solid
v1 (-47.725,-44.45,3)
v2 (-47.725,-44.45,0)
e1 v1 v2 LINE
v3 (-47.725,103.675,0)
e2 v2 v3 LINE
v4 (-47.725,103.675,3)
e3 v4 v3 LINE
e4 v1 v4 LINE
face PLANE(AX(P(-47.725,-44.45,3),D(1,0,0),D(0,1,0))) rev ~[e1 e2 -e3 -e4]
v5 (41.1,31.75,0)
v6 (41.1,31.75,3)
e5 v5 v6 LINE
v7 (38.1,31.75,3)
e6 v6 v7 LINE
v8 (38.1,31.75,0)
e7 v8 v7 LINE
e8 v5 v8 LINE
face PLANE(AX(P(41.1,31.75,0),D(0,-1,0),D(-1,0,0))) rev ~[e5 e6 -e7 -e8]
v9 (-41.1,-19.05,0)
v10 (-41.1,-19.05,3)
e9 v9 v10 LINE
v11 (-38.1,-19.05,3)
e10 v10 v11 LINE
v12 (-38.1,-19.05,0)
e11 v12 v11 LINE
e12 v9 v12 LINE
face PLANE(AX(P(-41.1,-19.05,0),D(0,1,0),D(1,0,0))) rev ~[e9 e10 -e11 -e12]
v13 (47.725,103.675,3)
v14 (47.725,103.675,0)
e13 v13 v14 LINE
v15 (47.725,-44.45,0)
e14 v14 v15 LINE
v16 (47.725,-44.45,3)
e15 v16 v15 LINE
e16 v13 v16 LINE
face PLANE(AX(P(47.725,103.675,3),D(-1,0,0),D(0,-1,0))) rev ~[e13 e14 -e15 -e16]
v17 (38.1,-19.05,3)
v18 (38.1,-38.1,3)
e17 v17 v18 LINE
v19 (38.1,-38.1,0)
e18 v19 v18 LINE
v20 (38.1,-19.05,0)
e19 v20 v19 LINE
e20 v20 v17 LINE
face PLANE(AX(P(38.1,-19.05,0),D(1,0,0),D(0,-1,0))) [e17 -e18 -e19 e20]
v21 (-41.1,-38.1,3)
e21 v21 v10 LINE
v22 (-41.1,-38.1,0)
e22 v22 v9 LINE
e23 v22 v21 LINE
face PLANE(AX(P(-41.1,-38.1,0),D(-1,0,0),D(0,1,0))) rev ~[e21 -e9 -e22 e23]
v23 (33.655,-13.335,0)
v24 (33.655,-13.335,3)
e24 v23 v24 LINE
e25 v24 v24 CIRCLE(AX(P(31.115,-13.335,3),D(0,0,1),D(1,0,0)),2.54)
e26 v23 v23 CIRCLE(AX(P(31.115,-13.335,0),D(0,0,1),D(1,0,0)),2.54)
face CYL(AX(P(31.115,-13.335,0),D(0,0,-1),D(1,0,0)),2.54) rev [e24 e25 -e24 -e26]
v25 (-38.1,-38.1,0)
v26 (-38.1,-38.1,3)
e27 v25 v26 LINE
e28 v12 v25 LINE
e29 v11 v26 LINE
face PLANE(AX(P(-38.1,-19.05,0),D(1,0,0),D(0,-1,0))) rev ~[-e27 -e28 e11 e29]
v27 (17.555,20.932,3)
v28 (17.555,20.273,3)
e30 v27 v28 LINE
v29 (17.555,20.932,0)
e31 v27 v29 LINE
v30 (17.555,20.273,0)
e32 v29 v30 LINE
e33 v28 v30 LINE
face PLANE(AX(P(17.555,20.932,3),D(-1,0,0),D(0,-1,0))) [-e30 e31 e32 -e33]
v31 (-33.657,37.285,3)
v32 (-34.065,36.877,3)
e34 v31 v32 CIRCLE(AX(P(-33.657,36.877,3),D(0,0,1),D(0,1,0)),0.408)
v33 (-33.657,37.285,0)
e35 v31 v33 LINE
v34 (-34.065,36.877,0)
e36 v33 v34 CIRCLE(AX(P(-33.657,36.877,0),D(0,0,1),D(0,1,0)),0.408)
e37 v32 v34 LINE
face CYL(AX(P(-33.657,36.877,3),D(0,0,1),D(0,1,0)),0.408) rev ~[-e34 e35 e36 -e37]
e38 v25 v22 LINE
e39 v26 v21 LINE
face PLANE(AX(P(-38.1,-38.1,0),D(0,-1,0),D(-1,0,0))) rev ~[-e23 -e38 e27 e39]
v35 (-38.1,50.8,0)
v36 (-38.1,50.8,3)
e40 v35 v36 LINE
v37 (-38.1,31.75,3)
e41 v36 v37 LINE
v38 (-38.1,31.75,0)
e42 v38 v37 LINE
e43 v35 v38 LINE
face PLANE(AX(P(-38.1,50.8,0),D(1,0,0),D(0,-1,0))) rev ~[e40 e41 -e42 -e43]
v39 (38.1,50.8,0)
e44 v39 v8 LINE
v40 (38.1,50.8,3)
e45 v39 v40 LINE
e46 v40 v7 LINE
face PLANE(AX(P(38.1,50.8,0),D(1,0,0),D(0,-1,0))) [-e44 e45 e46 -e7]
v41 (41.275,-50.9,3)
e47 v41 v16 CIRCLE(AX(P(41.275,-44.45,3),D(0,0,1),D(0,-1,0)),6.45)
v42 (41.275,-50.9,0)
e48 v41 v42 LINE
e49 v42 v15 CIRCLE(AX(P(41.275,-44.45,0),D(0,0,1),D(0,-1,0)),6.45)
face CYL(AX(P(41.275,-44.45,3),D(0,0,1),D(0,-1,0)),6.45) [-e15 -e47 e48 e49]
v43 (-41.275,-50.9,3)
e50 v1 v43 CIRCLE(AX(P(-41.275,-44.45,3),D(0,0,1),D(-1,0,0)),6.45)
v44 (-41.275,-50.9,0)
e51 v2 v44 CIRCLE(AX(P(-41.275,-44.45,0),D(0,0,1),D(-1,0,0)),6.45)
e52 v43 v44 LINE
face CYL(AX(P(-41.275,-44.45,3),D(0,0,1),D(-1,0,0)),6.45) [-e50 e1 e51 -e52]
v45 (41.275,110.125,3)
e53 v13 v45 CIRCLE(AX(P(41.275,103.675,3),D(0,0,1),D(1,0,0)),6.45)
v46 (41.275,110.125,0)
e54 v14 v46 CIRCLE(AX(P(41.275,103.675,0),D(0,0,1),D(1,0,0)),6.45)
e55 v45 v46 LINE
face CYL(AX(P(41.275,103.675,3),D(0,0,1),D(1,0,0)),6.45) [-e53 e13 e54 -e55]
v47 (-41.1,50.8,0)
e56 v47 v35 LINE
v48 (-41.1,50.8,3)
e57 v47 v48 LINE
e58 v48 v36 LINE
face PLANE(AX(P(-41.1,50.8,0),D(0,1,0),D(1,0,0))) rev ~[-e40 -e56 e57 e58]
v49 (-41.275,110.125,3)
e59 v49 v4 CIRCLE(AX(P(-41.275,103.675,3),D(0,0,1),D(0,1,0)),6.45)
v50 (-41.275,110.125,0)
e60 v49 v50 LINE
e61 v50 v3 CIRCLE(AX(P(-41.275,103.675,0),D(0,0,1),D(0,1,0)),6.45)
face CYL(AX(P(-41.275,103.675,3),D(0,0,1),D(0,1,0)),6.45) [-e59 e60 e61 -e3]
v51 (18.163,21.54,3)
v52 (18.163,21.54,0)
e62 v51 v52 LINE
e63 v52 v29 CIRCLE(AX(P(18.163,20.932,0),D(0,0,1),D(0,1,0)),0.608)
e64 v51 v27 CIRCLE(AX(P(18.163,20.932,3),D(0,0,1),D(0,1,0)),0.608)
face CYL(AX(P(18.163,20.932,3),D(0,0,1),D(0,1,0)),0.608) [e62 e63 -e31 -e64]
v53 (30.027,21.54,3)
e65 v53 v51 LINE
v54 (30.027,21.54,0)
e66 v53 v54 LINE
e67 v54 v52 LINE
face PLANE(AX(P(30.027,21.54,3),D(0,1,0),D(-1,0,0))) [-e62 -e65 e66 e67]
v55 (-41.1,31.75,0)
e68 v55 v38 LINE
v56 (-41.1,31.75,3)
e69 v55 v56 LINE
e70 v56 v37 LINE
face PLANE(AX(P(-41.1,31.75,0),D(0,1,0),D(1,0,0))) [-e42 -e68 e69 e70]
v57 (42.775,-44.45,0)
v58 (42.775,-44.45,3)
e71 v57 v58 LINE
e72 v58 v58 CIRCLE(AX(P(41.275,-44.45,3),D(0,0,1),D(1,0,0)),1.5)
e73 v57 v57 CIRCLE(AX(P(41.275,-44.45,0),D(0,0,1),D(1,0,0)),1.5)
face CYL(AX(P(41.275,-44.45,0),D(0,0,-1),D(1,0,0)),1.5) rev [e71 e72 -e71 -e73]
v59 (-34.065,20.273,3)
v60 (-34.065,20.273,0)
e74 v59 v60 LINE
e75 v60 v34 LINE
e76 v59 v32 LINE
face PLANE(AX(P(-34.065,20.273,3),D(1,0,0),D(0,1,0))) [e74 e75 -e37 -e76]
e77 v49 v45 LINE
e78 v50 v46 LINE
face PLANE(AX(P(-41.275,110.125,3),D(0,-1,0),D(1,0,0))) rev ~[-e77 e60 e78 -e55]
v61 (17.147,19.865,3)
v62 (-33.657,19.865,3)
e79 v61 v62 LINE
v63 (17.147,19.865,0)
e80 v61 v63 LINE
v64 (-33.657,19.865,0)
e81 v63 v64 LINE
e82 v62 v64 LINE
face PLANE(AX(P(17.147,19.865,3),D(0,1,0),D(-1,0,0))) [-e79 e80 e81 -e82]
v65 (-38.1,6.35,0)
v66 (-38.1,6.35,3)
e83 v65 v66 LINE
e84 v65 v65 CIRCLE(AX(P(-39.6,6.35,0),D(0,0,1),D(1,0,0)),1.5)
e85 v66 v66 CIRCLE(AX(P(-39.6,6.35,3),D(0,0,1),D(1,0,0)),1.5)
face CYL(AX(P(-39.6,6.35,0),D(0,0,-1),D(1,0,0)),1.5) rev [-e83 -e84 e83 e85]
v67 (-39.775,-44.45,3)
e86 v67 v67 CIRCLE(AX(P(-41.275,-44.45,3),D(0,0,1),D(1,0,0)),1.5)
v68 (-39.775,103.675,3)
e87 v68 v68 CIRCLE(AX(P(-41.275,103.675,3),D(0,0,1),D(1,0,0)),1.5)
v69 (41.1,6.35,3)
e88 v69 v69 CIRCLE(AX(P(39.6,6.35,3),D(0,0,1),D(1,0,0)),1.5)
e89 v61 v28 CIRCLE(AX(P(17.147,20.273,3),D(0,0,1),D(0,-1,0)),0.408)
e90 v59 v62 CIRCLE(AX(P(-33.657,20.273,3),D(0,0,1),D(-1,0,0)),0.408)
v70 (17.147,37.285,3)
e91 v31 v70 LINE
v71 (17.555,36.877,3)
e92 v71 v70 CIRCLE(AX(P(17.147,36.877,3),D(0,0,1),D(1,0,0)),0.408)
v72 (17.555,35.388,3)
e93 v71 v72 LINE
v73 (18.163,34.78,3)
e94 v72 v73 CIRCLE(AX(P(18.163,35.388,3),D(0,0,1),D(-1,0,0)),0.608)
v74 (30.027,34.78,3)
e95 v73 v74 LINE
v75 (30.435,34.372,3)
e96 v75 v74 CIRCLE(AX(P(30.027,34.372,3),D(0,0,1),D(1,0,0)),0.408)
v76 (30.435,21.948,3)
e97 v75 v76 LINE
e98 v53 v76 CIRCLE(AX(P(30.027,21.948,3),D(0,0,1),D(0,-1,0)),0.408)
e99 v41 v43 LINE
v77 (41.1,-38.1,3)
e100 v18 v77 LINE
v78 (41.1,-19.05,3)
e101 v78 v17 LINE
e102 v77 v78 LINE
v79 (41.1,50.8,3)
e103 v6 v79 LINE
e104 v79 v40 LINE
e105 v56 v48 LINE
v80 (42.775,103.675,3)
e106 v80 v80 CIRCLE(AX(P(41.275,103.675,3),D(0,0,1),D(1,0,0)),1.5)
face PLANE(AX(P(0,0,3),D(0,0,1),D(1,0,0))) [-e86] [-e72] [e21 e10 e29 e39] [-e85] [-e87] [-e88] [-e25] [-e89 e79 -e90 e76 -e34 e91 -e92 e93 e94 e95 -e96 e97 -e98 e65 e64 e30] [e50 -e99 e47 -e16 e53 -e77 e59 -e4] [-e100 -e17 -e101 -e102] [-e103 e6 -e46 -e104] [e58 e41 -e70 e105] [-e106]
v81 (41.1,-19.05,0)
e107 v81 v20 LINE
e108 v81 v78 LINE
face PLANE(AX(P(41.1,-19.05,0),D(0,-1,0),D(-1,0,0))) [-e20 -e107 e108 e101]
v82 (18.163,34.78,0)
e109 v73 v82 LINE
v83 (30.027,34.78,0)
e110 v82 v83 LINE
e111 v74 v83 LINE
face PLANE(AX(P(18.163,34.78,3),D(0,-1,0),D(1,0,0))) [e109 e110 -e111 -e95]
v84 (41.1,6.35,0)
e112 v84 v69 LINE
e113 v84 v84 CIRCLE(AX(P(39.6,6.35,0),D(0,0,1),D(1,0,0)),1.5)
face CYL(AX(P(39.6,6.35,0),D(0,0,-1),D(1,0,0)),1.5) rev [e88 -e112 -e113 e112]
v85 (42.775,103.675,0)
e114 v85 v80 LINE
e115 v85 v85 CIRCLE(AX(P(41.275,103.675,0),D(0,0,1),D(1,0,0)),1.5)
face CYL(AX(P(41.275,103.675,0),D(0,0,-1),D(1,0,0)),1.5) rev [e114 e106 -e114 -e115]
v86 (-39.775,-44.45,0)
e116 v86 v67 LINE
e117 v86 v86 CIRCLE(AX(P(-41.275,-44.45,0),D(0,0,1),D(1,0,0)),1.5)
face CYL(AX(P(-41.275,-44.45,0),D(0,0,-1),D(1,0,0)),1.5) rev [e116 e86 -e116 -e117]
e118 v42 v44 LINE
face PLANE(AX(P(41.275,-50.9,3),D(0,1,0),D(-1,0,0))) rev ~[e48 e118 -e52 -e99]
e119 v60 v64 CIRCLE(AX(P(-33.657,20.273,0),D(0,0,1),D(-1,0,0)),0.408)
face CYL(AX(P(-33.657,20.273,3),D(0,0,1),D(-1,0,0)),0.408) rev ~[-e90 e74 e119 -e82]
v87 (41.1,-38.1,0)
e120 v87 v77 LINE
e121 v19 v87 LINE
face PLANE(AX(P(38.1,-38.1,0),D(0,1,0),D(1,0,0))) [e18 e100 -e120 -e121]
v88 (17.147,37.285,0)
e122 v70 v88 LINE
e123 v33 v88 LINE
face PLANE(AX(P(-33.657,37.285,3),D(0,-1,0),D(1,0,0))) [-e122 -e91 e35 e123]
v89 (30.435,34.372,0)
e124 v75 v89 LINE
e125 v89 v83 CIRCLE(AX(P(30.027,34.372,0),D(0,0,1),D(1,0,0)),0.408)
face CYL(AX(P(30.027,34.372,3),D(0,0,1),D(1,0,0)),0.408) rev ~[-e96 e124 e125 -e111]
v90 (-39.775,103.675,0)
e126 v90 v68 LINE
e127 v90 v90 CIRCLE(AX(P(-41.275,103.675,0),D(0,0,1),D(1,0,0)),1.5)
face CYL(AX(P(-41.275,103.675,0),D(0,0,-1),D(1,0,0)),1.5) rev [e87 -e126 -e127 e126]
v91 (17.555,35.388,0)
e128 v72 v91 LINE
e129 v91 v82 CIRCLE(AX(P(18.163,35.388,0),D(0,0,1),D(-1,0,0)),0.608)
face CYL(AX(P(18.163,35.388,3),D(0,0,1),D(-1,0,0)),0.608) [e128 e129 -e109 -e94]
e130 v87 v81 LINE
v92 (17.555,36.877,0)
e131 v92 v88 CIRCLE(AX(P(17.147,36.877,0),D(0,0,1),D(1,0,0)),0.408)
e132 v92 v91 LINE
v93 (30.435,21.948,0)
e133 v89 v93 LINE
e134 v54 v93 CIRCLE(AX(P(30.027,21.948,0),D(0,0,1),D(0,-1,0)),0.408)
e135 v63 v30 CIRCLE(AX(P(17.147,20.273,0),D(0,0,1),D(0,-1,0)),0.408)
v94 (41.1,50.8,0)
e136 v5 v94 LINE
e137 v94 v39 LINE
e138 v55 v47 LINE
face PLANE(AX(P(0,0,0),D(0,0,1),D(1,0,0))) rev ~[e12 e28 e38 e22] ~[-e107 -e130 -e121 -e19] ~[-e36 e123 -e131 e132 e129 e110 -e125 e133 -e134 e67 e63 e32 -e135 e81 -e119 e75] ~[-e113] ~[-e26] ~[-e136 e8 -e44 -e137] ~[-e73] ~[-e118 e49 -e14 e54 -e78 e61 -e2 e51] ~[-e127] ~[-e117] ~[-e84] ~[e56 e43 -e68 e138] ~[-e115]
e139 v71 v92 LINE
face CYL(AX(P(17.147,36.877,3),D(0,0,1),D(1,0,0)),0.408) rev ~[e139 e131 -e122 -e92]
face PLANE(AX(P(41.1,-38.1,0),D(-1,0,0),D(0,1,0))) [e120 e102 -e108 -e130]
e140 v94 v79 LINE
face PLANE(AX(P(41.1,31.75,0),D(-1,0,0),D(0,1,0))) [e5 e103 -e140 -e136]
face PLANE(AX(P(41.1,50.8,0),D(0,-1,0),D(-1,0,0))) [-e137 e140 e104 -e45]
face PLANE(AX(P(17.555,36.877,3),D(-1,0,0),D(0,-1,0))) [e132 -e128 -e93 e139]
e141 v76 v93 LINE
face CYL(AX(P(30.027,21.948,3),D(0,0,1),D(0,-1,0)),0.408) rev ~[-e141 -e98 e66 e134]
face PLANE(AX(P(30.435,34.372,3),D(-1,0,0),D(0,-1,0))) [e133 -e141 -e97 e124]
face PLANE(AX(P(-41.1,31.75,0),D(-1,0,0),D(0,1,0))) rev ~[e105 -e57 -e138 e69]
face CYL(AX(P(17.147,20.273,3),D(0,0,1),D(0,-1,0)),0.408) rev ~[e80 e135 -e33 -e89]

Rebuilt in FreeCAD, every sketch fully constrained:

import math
import FreeCAD as App
import Part
import Sketcher
Q = App.Units.Quantity


def add_polygon(sketch, points):
    """Adds a closed chain of lines whose ends are joined by coincident constraints."""
    first, n = sketch.GeometryCount, len(points)
    for a, b in zip(points, points[1:] + points[:1]):
        sketch.addGeometry(Part.LineSegment(App.Vector(*a, 0), App.Vector(*b, 0)), False)
    for i in range(n):
        sketch.addConstraint(Sketcher.Constraint("Coincident", first + i, 2, first + (i + 1) % n, 1))

doc = App.newDocument("Part")
body = doc.addObject("PartDesign::Body", "Body")

# Sketch on XY plane
sketch1 = body.newObject("Sketcher::SketchObject", "Sketch")
sketch1.AttachmentSupport = (doc.getObject("XY_Plane"), [""])
sketch1.MapMode = "FlatFace"
sketch1.addGeometry(Part.LineSegment(App.Vector(-41.3, -50.8, 0), App.Vector(41.3, -50.8, 0)), False)  # 0
sketch1.addGeometry(Part.ArcOfCircle(Part.Circle(App.Vector(41.3, -44.5, 0), App.Vector(0, 0, 1), 6.3), math.radians(-90), math.radians(0)), False)  # 1
sketch1.addGeometry(Part.LineSegment(App.Vector(47.6, -44.5, 0), App.Vector(47.6, 103.7, 0)), False)  # 2
sketch1.addGeometry(Part.ArcOfCircle(Part.Circle(App.Vector(41.3, 103.7, 0), App.Vector(0, 0, 1), 6.4), math.radians(0), math.radians(90)), False)  # 3
sketch1.addGeometry(Part.LineSegment(App.Vector(41.3, 110, 0), App.Vector(-41.3, 110, 0)), False)  # 4
sketch1.addGeometry(Part.ArcOfCircle(Part.Circle(App.Vector(-41.3, 103.7, 0), App.Vector(0, 0, 1), 6.4), math.radians(90), math.radians(180)), False)  # 5
sketch1.addGeometry(Part.LineSegment(App.Vector(-47.6, 103.7, 0), App.Vector(-47.6, -44.5, 0)), False)  # 6
sketch1.addGeometry(Part.ArcOfCircle(Part.Circle(App.Vector(-41.3, -44.5, 0), App.Vector(0, 0, 1), 6.4), math.radians(180), math.radians(270)), False)  # 7
sketch1.addGeometry(Part.LineSegment(App.Vector(-33.7, 37.4, 0), App.Vector(17.1, 37.4, 0)), False)  # 8
sketch1.addGeometry(Part.ArcOfCircle(Part.Circle(App.Vector(17.1, 36.9, 0), App.Vector(0, 0, 1), 0.5), math.radians(0), math.radians(90)), False)  # 9
sketch1.addGeometry(Part.LineSegment(App.Vector(17.7, 36.9, 0), App.Vector(17.7, 35.4, 0)), False)  # 10
sketch1.addGeometry(Part.ArcOfCircle(Part.Circle(App.Vector(18.2, 35.4, 0), App.Vector(0, 0, 1), 0.5), math.radians(180), math.radians(270)), False)  # 11
sketch1.addGeometry(Part.LineSegment(App.Vector(18.2, 34.9, 0), App.Vector(30, 34.9, 0)), False)  # 12
sketch1.addGeometry(Part.ArcOfCircle(Part.Circle(App.Vector(30, 34.4, 0), App.Vector(0, 0, 1), 0.5), math.radians(0), math.radians(90)), False)  # 13
sketch1.addGeometry(Part.LineSegment(App.Vector(30.5, 34.4, 0), App.Vector(30.5, 21.9, 0)), False)  # 14
sketch1.addGeometry(Part.ArcOfCircle(Part.Circle(App.Vector(30, 21.9, 0), App.Vector(0, 0, 1), 0.5), math.radians(-90), math.radians(0)), False)  # 15
sketch1.addGeometry(Part.LineSegment(App.Vector(30, 21.4, 0), App.Vector(18.2, 21.4, 0)), False)  # 16
sketch1.addGeometry(Part.ArcOfCircle(Part.Circle(App.Vector(18.2, 20.9, 0), App.Vector(0, 0, 1), 0.5), math.radians(90), math.radians(180)), False)  # 17
sketch1.addGeometry(Part.LineSegment(App.Vector(17.7, 20.9, 0), App.Vector(17.7, 20.3, 0)), False)  # 18
sketch1.addGeometry(Part.ArcOfCircle(Part.Circle(App.Vector(17.1, 20.3, 0), App.Vector(0, 0, 1), 0.5), math.radians(-90), math.radians(0)), False)  # 19
sketch1.addGeometry(Part.LineSegment(App.Vector(17.1, 19.8, 0), App.Vector(-33.7, 19.8, 0)), False)  # 20
sketch1.addGeometry(Part.ArcOfCircle(Part.Circle(App.Vector(-33.7, 20.3, 0), App.Vector(0, 0, 1), 0.5), math.radians(180), math.radians(270)), False)  # 21
sketch1.addGeometry(Part.LineSegment(App.Vector(-34.2, 20.3, 0), App.Vector(-34.2, 36.9, 0)), False)  # 22
sketch1.addGeometry(Part.ArcOfCircle(Part.Circle(App.Vector(-33.7, 36.9, 0), App.Vector(0, 0, 1), 0.5), math.radians(90), math.radians(180)), False)  # 23
sketch1.addGeometry(Part.Circle(App.Vector(-41.3, -44.5, 0), App.Vector(0, 0, 1), 1.5), False)  # 24
add_polygon(sketch1, [(-38.1, -19.1), (-38.1, -38.1), (-41.1, -38.1), (-41.1, -19.1)])  # lines 25-28
sketch1.addGeometry(Part.Circle(App.Vector(-39.6, 6.3, 0), App.Vector(0, 0, 1), 1.5), False)  # 29
add_polygon(sketch1, [(-41.1, 31.8), (-41.1, 50.8), (-38.1, 50.8), (-38.1, 31.8)])  # lines 30-33
sketch1.addGeometry(Part.Circle(App.Vector(-41.3, 103.7, 0), App.Vector(0, 0, 1), 1.5), False)  # 34
add_polygon(sketch1, [(41.1, 31.8), (38.1, 31.8), (38.1, 50.8), (41.1, 50.8)])  # lines 35-38
sketch1.addGeometry(Part.Circle(App.Vector(41.3, 103.7, 0), App.Vector(0, 0, 1), 1.5), False)  # 39
sketch1.addGeometry(Part.Circle(App.Vector(41.3, -44.5, 0), App.Vector(0, 0, 1), 1.5), False)  # 40
sketch1.addGeometry(Part.Circle(App.Vector(31.1, -13.3, 0), App.Vector(0, 0, 1), 2.5), False)  # 41
add_polygon(sketch1, [(41.1, -38.1), (38.1, -38.1), (38.1, -19.1), (41.1, -19.1)])  # lines 42-45
sketch1.addGeometry(Part.Circle(App.Vector(39.6, 6.3, 0), App.Vector(0, 0, 1), 1.5), False)  # 46
sketch1.addConstraint([
    Sketcher.Constraint("Tangent", 0, 2, 1, 1),
    Sketcher.Constraint("Tangent", 1, 2, 2, 1),
    Sketcher.Constraint("Tangent", 2, 2, 3, 1),
    Sketcher.Constraint("Tangent", 3, 2, 4, 1),
    Sketcher.Constraint("Tangent", 4, 2, 5, 1),
    Sketcher.Constraint("Tangent", 5, 2, 6, 1),
    Sketcher.Constraint("Tangent", 6, 2, 7, 1),
    Sketcher.Constraint("Tangent", 7, 2, 0, 1),
    Sketcher.Constraint("Tangent", 8, 2, 9, 2),
    Sketcher.Constraint("Tangent", 9, 1, 10, 1),
    Sketcher.Constraint("Tangent", 10, 2, 11, 1),
    Sketcher.Constraint("Tangent", 11, 2, 12, 1),
    Sketcher.Constraint("Tangent", 12, 2, 13, 2),
    Sketcher.Constraint("Tangent", 13, 1, 14, 1),
    Sketcher.Constraint("Tangent", 14, 2, 15, 2),
    Sketcher.Constraint("Tangent", 15, 1, 16, 1),
    Sketcher.Constraint("Tangent", 16, 2, 17, 1),
    Sketcher.Constraint("Tangent", 17, 2, 18, 1),
    Sketcher.Constraint("Tangent", 18, 2, 19, 2),
    Sketcher.Constraint("Tangent", 19, 1, 20, 1),
    Sketcher.Constraint("Tangent", 20, 2, 21, 2),
    Sketcher.Constraint("Tangent", 21, 1, 22, 1),
    Sketcher.Constraint("Tangent", 22, 2, 23, 2),
    Sketcher.Constraint("Tangent", 23, 1, 8, 1),
    Sketcher.Constraint("Horizontal", 0),
    Sketcher.Constraint("Vertical", 2),
    Sketcher.Constraint("Horizontal", 4),
    Sketcher.Constraint("Vertical", 6),
    Sketcher.Constraint("Horizontal", 8),
    Sketcher.Constraint("Vertical", 10),
    Sketcher.Constraint("Horizontal", 12),
    Sketcher.Constraint("Vertical", 14),
    Sketcher.Constraint("Horizontal", 16),
    Sketcher.Constraint("Vertical", 18),
    Sketcher.Constraint("Horizontal", 20),
    Sketcher.Constraint("Vertical", 22),
    Sketcher.Constraint("Vertical", 25),
    Sketcher.Constraint("Horizontal", 26),
    Sketcher.Constraint("Vertical", 27),
    Sketcher.Constraint("Horizontal", 28),
    Sketcher.Constraint("Vertical", 30),
    Sketcher.Constraint("Horizontal", 31),
    Sketcher.Constraint("Vertical", 32),
    Sketcher.Constraint("Horizontal", 33),
    Sketcher.Constraint("Horizontal", 35),
    Sketcher.Constraint("Vertical", 36),
    Sketcher.Constraint("Horizontal", 37),
    Sketcher.Constraint("Vertical", 38),
    Sketcher.Constraint("Horizontal", 42),
    Sketcher.Constraint("Vertical", 43),
    Sketcher.Constraint("Horizontal", 44),
    Sketcher.Constraint("Vertical", 45),
    Sketcher.Constraint("Coincident", 24, 3, 7, 3),
    Sketcher.Constraint("Coincident", 34, 3, 5, 3),
    Sketcher.Constraint("Coincident", 39, 3, 3, 3),
    Sketcher.Constraint("Coincident", 40, 3, 1, 3),
    Sketcher.Constraint("Equal", 1, 3),
    Sketcher.Constraint("Equal", 3, 5),
    Sketcher.Constraint("Equal", 5, 7),
    Sketcher.Constraint("Equal", 9, 11),
    Sketcher.Constraint("Equal", 11, 13),
    Sketcher.Constraint("Equal", 13, 15),
    Sketcher.Constraint("Equal", 15, 17),
    Sketcher.Constraint("Equal", 17, 19),
    Sketcher.Constraint("Equal", 19, 21),
    Sketcher.Constraint("Equal", 21, 23),
    Sketcher.Constraint("Equal", 24, 29),
    Sketcher.Constraint("Equal", 29, 34),
    Sketcher.Constraint("Equal", 34, 39),
    Sketcher.Constraint("Equal", 39, 40),
    Sketcher.Constraint("Equal", 40, 46),
    Sketcher.Constraint("Symmetric", 29, 3, 46, 3, -2),
    Sketcher.Constraint("Symmetric", 32, 2, 35, 2, -2),
    Sketcher.Constraint("Symmetric", 30, 2, 37, 2, -2),
    Sketcher.Constraint("Symmetric", 25, 2, 42, 2, -2),
    Sketcher.Constraint("Symmetric", 27, 2, 44, 2, -2),
    Sketcher.Constraint("Vertical", 11, 3, 17, 3),
    Sketcher.Constraint("Vertical", 27, 2, 30, 2),
    Sketcher.Constraint("Vertical", 28, 2, 31, 2),
    Sketcher.Constraint("Equal", 27, 30),
    Sketcher.Constraint("Diameter", 41, Q("0.2 in")),
    Sketcher.Constraint("Radius", 1, Q("0.25 in")),
    Sketcher.Constraint("Radius", 9, Q("0.02 in")),
    Sketcher.Constraint("DistanceY", 7, 3, 27, 2, Q("1 in")),
    Sketcher.Constraint("DistanceY", 27, 2, 29, 3, Q("1 in")),
    Sketcher.Constraint("Diameter", 24, Q("0.1181 in")),
    Sketcher.Constraint("DistanceY", 25, 2, 25, 1, Q("0.75 in")),
    Sketcher.Constraint("DistanceX", 41, 3, 1, 3, Q("0.4 in")),
    Sketcher.Constraint("DistanceY", -1, 1, 29, 3, Q("0.25 in")),
    Sketcher.Constraint("DistanceX", 26, 2, 26, 1, Q("0.1181 in")),
    Sketcher.Constraint("DistanceY", -1, 1, 30, 2, Q("2 in")),
    Sketcher.Constraint("DistanceX", 7, 3, 25, 2, Q("0.125 in")),
    Sketcher.Constraint("DistanceX", 42, 2, 1, 3, Q("0.125 in")),
    Sketcher.Constraint("DistanceY", 42, 2, 41, 3, Q("0.975 in")),
    Sketcher.Constraint("DistanceX", 0, 1, 0, 2, Q("3.25 in")),
    Sketcher.Constraint("DistanceY", 2, 1, 2, 2, Q("5.8317 in")),
    Sketcher.Constraint("DistanceY", 22, 1, 22, 2, Q("0.6537 in")),
    Sketcher.Constraint("DistanceX", 8, 1, 8, 2, Q("50.804 mm")),
    Sketcher.Constraint("DistanceX", 12, 1, 12, 2, Q("11.864 mm")),
    Sketcher.Constraint("DistanceY", 10, 2, 10, 1, Q("1.489 mm")),
    Sketcher.Constraint("DistanceY", 14, 2, 14, 1, Q("12.424 mm")),
    Sketcher.Constraint("DistanceY", -1, 1, 15, 3, Q("0.8641 in")),
    Sketcher.Constraint("DistanceX", 15, 3, 46, 3, Q("0.3769 in")),
    Sketcher.Constraint("DistanceX", -1, 1, 9, 3, Q("17.147 mm")),
])
pad1 = body.newObject("PartDesign::Pad", "Pad")
pad1.Profile = sketch1
pad1.Length = Q("0.1181102 in")

# Sketch on XY plane
sketch2 = body.newObject("Sketcher::SketchObject", "Sketch001")
sketch2.AttachmentSupport = (doc.getObject("XY_Plane"), [""])
sketch2.MapMode = "FlatFace"
sketch2.AttachmentOffset = App.Placement(App.Vector(0, 0, 0.1181102 * 25.4), App.Rotation())
sketch2.addGeometry([
    Part.LineSegment(App.Vector(17.66, 35.39, 0), App.Vector(17.66, 36.88, 0)),  # 0
    Part.ArcOfCircle(Part.Circle(App.Vector(17.15, 36.88, 0), App.Vector(0, 0, 1), 0.51), math.radians(0), math.radians(90)),  # 1
    Part.LineSegment(App.Vector(17.15, 37.38, 0), App.Vector(-33.66, 37.38, 0)),  # 2
    Part.ArcOfCircle(Part.Circle(App.Vector(-33.66, 36.88, 0), App.Vector(0, 0, 1), 0.51), math.radians(90), math.radians(180)),  # 3
    Part.LineSegment(App.Vector(-34.16, 36.88, 0), App.Vector(-34.16, 20.27, 0)),  # 4
    Part.ArcOfCircle(Part.Circle(App.Vector(-33.66, 20.27, 0), App.Vector(0, 0, 1), 0.51), math.radians(180), math.radians(270)),  # 5
    Part.LineSegment(App.Vector(-33.66, 19.77, 0), App.Vector(17.15, 19.77, 0)),  # 6
    Part.ArcOfCircle(Part.Circle(App.Vector(17.15, 20.27, 0), App.Vector(0, 0, 1), 0.51), math.radians(-90), math.radians(0)),  # 7
    Part.LineSegment(App.Vector(17.66, 20.27, 0), App.Vector(17.66, 20.93, 0)),  # 8
    Part.ArcOfCircle(Part.Circle(App.Vector(18.16, 20.93, 0), App.Vector(0, 0, 1), 0.51), math.radians(90), math.radians(180)),  # 9
    Part.LineSegment(App.Vector(18.16, 21.44, 0), App.Vector(30.03, 21.44, 0)),  # 10
    Part.ArcOfCircle(Part.Circle(App.Vector(30.03, 21.95, 0), App.Vector(0, 0, 1), 0.51), math.radians(-90), math.radians(0)),  # 11
    Part.LineSegment(App.Vector(30.54, 21.95, 0), App.Vector(30.54, 34.37, 0)),  # 12
    Part.ArcOfCircle(Part.Circle(App.Vector(30.03, 34.37, 0), App.Vector(0, 0, 1), 0.51), math.radians(0), math.radians(90)),  # 13
    Part.LineSegment(App.Vector(30.03, 34.88, 0), App.Vector(18.16, 34.88, 0)),  # 14
    Part.ArcOfCircle(Part.Circle(App.Vector(18.16, 35.39, 0), App.Vector(0, 0, 1), 0.51), math.radians(180), math.radians(270)),  # 15
    Part.ArcOfCircle(Part.Circle(App.Vector(17.15, 36.88, 0), App.Vector(0, 0, 1), 0.41), math.radians(0), math.radians(90)),  # 16
    Part.LineSegment(App.Vector(17.55, 36.88, 0), App.Vector(17.55, 35.39, 0)),  # 17
    Part.ArcOfCircle(Part.Circle(App.Vector(18.16, 35.39, 0), App.Vector(0, 0, 1), 0.61), math.radians(180), math.radians(270)),  # 18
    Part.LineSegment(App.Vector(18.16, 34.78, 0), App.Vector(30.03, 34.78, 0)),  # 19
    Part.ArcOfCircle(Part.Circle(App.Vector(30.03, 34.37, 0), App.Vector(0, 0, 1), 0.41), math.radians(0), math.radians(90)),  # 20
    Part.LineSegment(App.Vector(30.43, 34.37, 0), App.Vector(30.43, 21.95, 0)),  # 21
    Part.ArcOfCircle(Part.Circle(App.Vector(30.03, 21.95, 0), App.Vector(0, 0, 1), 0.41), math.radians(-90), math.radians(0)),  # 22
    Part.LineSegment(App.Vector(30.03, 21.54, 0), App.Vector(18.16, 21.54, 0)),  # 23
    Part.ArcOfCircle(Part.Circle(App.Vector(18.16, 20.93, 0), App.Vector(0, 0, 1), 0.61), math.radians(90), math.radians(180)),  # 24
    Part.LineSegment(App.Vector(17.55, 20.93, 0), App.Vector(17.55, 20.27, 0)),  # 25
    Part.ArcOfCircle(Part.Circle(App.Vector(17.15, 20.27, 0), App.Vector(0, 0, 1), 0.41), math.radians(-90), math.radians(0)),  # 26
    Part.LineSegment(App.Vector(17.15, 19.86, 0), App.Vector(-33.66, 19.86, 0)),  # 27
    Part.ArcOfCircle(Part.Circle(App.Vector(-33.66, 20.27, 0), App.Vector(0, 0, 1), 0.41), math.radians(180), math.radians(270)),  # 28
    Part.LineSegment(App.Vector(-34.06, 20.27, 0), App.Vector(-34.06, 36.88, 0)),  # 29
    Part.ArcOfCircle(Part.Circle(App.Vector(-33.66, 36.88, 0), App.Vector(0, 0, 1), 0.41), math.radians(90), math.radians(180)),  # 30
    Part.LineSegment(App.Vector(-33.66, 37.28, 0), App.Vector(17.15, 37.28, 0)),  # 31
    Part.LineSegment(App.Vector(-47.73, 103.67, 0), App.Vector(-47.73, -44.45, 0)),  # 32
    Part.ArcOfCircle(Part.Circle(App.Vector(-41.27, -44.45, 0), App.Vector(0, 0, 1), 6.45), math.radians(180), math.radians(270)),  # 33
    Part.LineSegment(App.Vector(-41.27, -50.9, 0), App.Vector(41.27, -50.9, 0)),  # 34
    Part.ArcOfCircle(Part.Circle(App.Vector(41.27, -44.45, 0), App.Vector(0, 0, 1), 6.45), math.radians(-90), math.radians(0)),  # 35
    Part.LineSegment(App.Vector(47.73, -44.45, 0), App.Vector(47.73, 103.67, 0)),  # 36
    Part.ArcOfCircle(Part.Circle(App.Vector(41.27, 103.67, 0), App.Vector(0, 0, 1), 6.45), math.radians(0), math.radians(90)),  # 37
    Part.LineSegment(App.Vector(41.27, 110.12, 0), App.Vector(-41.27, 110.12, 0)),  # 38
    Part.ArcOfCircle(Part.Circle(App.Vector(-41.27, 103.67, 0), App.Vector(0, 0, 1), 6.45), math.radians(90), math.radians(180)),  # 39
    Part.LineSegment(App.Vector(-41.27, 110.03, 0), App.Vector(41.27, 110.03, 0)),  # 40
    Part.ArcOfCircle(Part.Circle(App.Vector(41.27, 103.67, 0), App.Vector(0, 0, 1), 6.35), math.radians(0), math.radians(90)),  # 41
    Part.LineSegment(App.Vector(47.62, 103.67, 0), App.Vector(47.62, -44.45, 0)),  # 42
    Part.ArcOfCircle(Part.Circle(App.Vector(41.27, -44.45, 0), App.Vector(0, 0, 1), 6.35), math.radians(-90), math.radians(0)),  # 43
    Part.LineSegment(App.Vector(41.27, -50.8, 0), App.Vector(-41.27, -50.8, 0)),  # 44
    Part.ArcOfCircle(Part.Circle(App.Vector(-41.27, -44.45, 0), App.Vector(0, 0, 1), 6.35), math.radians(180), math.radians(270)),  # 45
    Part.LineSegment(App.Vector(-47.62, -44.45, 0), App.Vector(-47.62, 103.67, 0)),  # 46
    Part.ArcOfCircle(Part.Circle(App.Vector(-41.27, 103.67, 0), App.Vector(0, 0, 1), 6.35), math.radians(90), math.radians(180)),  # 47
], False)
sketch2.addConstraint([
    Sketcher.Constraint("Tangent", 0, 2, 1, 1),
    Sketcher.Constraint("Tangent", 1, 2, 2, 1),
    Sketcher.Constraint("Tangent", 2, 2, 3, 1),
    Sketcher.Constraint("Tangent", 3, 2, 4, 1),
    Sketcher.Constraint("Tangent", 4, 2, 5, 1),
    Sketcher.Constraint("Tangent", 5, 2, 6, 1),
    Sketcher.Constraint("Tangent", 6, 2, 7, 1),
    Sketcher.Constraint("Tangent", 7, 2, 8, 1),
    Sketcher.Constraint("Tangent", 8, 2, 9, 2),
    Sketcher.Constraint("Tangent", 9, 1, 10, 1),
    Sketcher.Constraint("Tangent", 10, 2, 11, 1),
    Sketcher.Constraint("Tangent", 11, 2, 12, 1),
    Sketcher.Constraint("Tangent", 12, 2, 13, 1),
    Sketcher.Constraint("Tangent", 13, 2, 14, 1),
    Sketcher.Constraint("Tangent", 14, 2, 15, 2),
    Sketcher.Constraint("Tangent", 15, 1, 0, 1),
    Sketcher.Constraint("Tangent", 16, 1, 17, 1),
    Sketcher.Constraint("Tangent", 17, 2, 18, 1),
    Sketcher.Constraint("Tangent", 18, 2, 19, 1),
    Sketcher.Constraint("Tangent", 19, 2, 20, 2),
    Sketcher.Constraint("Tangent", 20, 1, 21, 1),
    Sketcher.Constraint("Tangent", 21, 2, 22, 2),
    Sketcher.Constraint("Tangent", 22, 1, 23, 1),
    Sketcher.Constraint("Tangent", 23, 2, 24, 1),
    Sketcher.Constraint("Tangent", 24, 2, 25, 1),
    Sketcher.Constraint("Tangent", 25, 2, 26, 2),
    Sketcher.Constraint("Tangent", 26, 1, 27, 1),
    Sketcher.Constraint("Tangent", 27, 2, 28, 2),
    Sketcher.Constraint("Tangent", 28, 1, 29, 1),
    Sketcher.Constraint("Tangent", 29, 2, 30, 2),
    Sketcher.Constraint("Tangent", 30, 1, 31, 1),
    Sketcher.Constraint("Tangent", 31, 2, 16, 2),
    Sketcher.Constraint("Tangent", 32, 2, 33, 1),
    Sketcher.Constraint("Tangent", 33, 2, 34, 1),
    Sketcher.Constraint("Tangent", 34, 2, 35, 1),
    Sketcher.Constraint("Tangent", 35, 2, 36, 1),
    Sketcher.Constraint("Tangent", 36, 2, 37, 1),
    Sketcher.Constraint("Tangent", 37, 2, 38, 1),
    Sketcher.Constraint("Tangent", 38, 2, 39, 1),
    Sketcher.Constraint("Tangent", 39, 2, 32, 1),
    Sketcher.Constraint("Tangent", 40, 2, 41, 2),
    Sketcher.Constraint("Tangent", 41, 1, 42, 1),
    Sketcher.Constraint("Tangent", 42, 2, 43, 2),
    Sketcher.Constraint("Tangent", 43, 1, 44, 1),
    Sketcher.Constraint("Tangent", 44, 2, 45, 2),
    Sketcher.Constraint("Tangent", 45, 1, 46, 1),
    Sketcher.Constraint("Tangent", 46, 2, 47, 2),
    Sketcher.Constraint("Tangent", 47, 1, 40, 1),
    Sketcher.Constraint("Vertical", 0),
    Sketcher.Constraint("Horizontal", 2),
    Sketcher.Constraint("Vertical", 4),
    Sketcher.Constraint("Horizontal", 6),
    Sketcher.Constraint("Vertical", 8),
    Sketcher.Constraint("Horizontal", 10),
    Sketcher.Constraint("Vertical", 12),
    Sketcher.Constraint("Horizontal", 14),
    Sketcher.Constraint("Vertical", 17),
    Sketcher.Constraint("Horizontal", 19),
    Sketcher.Constraint("Vertical", 21),
    Sketcher.Constraint("Horizontal", 23),
    Sketcher.Constraint("Vertical", 25),
    Sketcher.Constraint("Horizontal", 27),
    Sketcher.Constraint("Vertical", 29),
    Sketcher.Constraint("Horizontal", 31),
    Sketcher.Constraint("Vertical", 32),
    Sketcher.Constraint("Horizontal", 34),
    Sketcher.Constraint("Vertical", 36),
    Sketcher.Constraint("Horizontal", 38),
    Sketcher.Constraint("Horizontal", 40),
    Sketcher.Constraint("Vertical", 42),
    Sketcher.Constraint("Horizontal", 44),
    Sketcher.Constraint("Vertical", 46),
    Sketcher.Constraint("Coincident", 16, 3, 1, 3),
    Sketcher.Constraint("Coincident", 18, 3, 15, 3),
    Sketcher.Constraint("Coincident", 20, 3, 13, 3),
    Sketcher.Constraint("Coincident", 22, 3, 11, 3),
    Sketcher.Constraint("Coincident", 24, 3, 9, 3),
    Sketcher.Constraint("Coincident", 26, 3, 7, 3),
    Sketcher.Constraint("Coincident", 28, 3, 5, 3),
    Sketcher.Constraint("Coincident", 41, 3, 37, 3),
    Sketcher.Constraint("Coincident", 43, 3, 35, 3),
    Sketcher.Constraint("Coincident", 45, 3, 33, 3),
    Sketcher.Constraint("Equal", 1, 3),
    Sketcher.Constraint("Equal", 3, 5),
    Sketcher.Constraint("Equal", 5, 7),
    Sketcher.Constraint("Equal", 7, 9),
    Sketcher.Constraint("Equal", 9, 11),
    Sketcher.Constraint("Equal", 11, 13),
    Sketcher.Constraint("Equal", 13, 15),
    Sketcher.Constraint("Equal", 28, 30),
    Sketcher.Constraint("Equal", 33, 35),
    Sketcher.Constraint("Equal", 35, 37),
    Sketcher.Constraint("Equal", 37, 39),
    Sketcher.Constraint("Equal", 45, 47),
    Sketcher.Constraint("Vertical", 1, 3, 7, 3),
    Sketcher.Constraint("Radius", 1, Q("0.02 in")),
    Sketcher.Constraint("Radius", 41, Q("0.25 in")),
    Sketcher.Constraint("DistanceY", 43, 1, -1, 1, Q("2 in")),
    Sketcher.Constraint("DistanceX", 34, 1, 34, 2, Q("3.25 in")),
    Sketcher.Constraint("Radius", 16, Q("0.408 mm")),
    Sketcher.Constraint("Radius", 33, Q("6.45 mm")),
    Sketcher.Constraint("DistanceY", 4, 2, 4, 1, Q("0.6537 in")),
    Sketcher.Constraint("DistanceY", 32, 2, 32, 1, Q("5.8317 in")),
    Sketcher.Constraint("DistanceX", 33, 3, -1, 1, Q("1.625 in")),
    Sketcher.Constraint("DistanceX", 2, 2, 2, 1, Q("50.804 mm")),
    Sketcher.Constraint("DistanceX", 10, 1, 10, 2, Q("11.864 mm")),
    Sketcher.Constraint("DistanceY", 0, 1, 0, 2, Q("1.489 mm")),
    Sketcher.Constraint("DistanceY", 8, 1, 8, 2, Q("0.659 mm")),
    Sketcher.Constraint("DistanceY", -1, 1, 9, 3, Q("0.8241 in")),
    Sketcher.Constraint("DistanceX", -1, 1, 1, 3, Q("17.147 mm")),
])
pad2 = body.newObject("PartDesign::Pad", "Pad001")
pad2.Profile = sketch2
pad2.Length = Q("0.1181102 in")
pad2.Reversed = True

doc.recompute()
